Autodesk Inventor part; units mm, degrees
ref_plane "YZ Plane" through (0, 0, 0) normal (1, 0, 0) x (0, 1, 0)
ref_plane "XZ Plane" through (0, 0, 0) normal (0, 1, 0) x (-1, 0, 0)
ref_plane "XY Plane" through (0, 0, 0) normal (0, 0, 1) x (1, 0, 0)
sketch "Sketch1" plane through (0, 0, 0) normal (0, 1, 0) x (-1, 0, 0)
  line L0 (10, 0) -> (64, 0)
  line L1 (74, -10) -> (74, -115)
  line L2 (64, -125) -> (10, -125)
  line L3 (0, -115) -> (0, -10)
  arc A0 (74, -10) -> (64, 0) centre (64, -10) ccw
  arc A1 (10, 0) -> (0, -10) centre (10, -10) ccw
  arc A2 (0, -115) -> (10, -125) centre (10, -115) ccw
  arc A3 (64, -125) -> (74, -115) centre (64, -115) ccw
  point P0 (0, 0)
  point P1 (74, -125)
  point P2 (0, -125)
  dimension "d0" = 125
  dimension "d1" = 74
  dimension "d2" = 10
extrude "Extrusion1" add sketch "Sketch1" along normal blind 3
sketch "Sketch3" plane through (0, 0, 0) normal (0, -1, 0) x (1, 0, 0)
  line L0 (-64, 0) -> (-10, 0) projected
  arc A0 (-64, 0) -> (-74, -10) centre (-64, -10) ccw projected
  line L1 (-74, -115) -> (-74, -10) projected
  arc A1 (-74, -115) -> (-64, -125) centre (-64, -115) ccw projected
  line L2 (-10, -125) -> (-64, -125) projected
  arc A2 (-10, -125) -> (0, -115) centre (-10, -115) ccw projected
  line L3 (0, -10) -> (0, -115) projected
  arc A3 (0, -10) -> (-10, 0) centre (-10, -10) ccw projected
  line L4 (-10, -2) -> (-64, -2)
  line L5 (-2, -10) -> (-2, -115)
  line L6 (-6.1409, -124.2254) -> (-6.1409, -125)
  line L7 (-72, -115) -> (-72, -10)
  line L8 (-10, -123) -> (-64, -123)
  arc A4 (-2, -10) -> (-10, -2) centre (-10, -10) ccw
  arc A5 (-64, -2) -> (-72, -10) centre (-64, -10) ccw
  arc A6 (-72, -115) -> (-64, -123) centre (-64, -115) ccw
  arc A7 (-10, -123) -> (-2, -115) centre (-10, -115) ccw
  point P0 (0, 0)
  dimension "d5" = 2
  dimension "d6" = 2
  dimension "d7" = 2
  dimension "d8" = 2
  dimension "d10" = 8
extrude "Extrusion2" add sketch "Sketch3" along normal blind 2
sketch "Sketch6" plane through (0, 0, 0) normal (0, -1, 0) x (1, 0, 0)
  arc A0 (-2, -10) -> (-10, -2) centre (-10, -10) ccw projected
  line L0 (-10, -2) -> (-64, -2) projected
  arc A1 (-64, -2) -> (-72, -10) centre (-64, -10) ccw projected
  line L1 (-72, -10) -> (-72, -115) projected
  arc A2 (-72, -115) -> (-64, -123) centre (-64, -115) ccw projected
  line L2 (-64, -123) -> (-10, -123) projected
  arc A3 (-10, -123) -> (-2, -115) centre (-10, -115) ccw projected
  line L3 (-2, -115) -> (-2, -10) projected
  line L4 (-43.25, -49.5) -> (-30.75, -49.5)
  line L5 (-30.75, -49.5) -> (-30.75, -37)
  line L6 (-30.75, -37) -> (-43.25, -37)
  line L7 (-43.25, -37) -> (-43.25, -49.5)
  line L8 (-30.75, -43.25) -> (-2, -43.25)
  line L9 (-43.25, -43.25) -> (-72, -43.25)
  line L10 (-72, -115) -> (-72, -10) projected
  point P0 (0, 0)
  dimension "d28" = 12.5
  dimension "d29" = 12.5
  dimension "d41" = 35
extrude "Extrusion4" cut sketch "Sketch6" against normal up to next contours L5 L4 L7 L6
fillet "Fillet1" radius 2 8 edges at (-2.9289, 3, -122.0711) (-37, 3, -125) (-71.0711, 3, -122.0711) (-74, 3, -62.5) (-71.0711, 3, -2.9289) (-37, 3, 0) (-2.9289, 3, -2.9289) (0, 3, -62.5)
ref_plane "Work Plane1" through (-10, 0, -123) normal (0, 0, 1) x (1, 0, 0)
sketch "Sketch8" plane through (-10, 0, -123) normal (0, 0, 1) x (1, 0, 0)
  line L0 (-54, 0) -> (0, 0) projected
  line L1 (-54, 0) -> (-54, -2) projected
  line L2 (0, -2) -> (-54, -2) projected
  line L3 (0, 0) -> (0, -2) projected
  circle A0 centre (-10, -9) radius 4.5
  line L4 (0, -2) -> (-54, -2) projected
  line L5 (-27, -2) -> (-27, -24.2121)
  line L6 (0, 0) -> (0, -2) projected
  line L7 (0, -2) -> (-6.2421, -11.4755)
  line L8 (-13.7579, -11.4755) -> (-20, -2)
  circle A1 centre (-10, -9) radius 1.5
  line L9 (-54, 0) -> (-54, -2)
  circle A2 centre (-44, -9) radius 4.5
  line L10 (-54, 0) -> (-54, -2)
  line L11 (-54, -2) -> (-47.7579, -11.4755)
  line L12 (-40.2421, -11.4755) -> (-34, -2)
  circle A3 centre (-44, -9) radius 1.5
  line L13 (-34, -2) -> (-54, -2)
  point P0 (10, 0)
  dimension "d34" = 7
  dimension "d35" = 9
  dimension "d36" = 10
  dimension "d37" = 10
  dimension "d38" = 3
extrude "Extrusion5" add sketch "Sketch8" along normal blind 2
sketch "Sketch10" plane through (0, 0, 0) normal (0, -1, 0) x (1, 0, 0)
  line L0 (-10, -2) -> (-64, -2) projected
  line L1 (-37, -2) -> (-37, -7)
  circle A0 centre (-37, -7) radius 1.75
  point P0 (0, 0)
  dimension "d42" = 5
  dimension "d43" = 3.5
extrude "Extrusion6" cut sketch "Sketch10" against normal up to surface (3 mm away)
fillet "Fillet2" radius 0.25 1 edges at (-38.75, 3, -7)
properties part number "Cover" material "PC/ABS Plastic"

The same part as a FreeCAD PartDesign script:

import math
import FreeCAD as App
import Part
import Sketcher
Q = App.Units.Quantity


def edges_at(feature, points):
    """Names of the edges that pass closest to the given points."""
    edges = feature.Shape.Edges
    near = lambda p: min(range(len(edges)), key=lambda i: edges[i].distToShape(Part.Vertex(*p))[0])
    return sorted({f"Edge{near(p) + 1}" for p in points})


def add_polygon(sketch, points):
    """Adds a closed chain of lines whose ends are joined by coincident constraints."""
    first, n = sketch.GeometryCount, len(points)
    for a, b in zip(points, points[1:] + points[:1]):
        sketch.addGeometry(Part.LineSegment(App.Vector(*a, 0), App.Vector(*b, 0)), False)
    for i in range(n):
        sketch.addConstraint(Sketcher.Constraint("Coincident", first + i, 2, first + (i + 1) % n, 1))

doc = App.newDocument("Part")
params = doc.addObject("Spreadsheet::Sheet", "Params")
for row, (alias, value) in enumerate([
    ("sketch1_radius", "10 mm"),
    ("pad1_length", "3 mm"),
    ("sketch2_radius", "8 mm"),
    ("sketch2_width", "54 mm"),
    ("sketch2_height", "105 mm"),
    ("pad2_length", "2 mm"),
    ("sketch3_width", "12.5 mm"),
    ("fillet_radius", "2 mm"),
    ("sketch4_diameter", "3 mm"),
    ("sketch4_radius", "4.5 mm"),
    ("sketch4_width", "54 mm"),
    ("pad3_length", "2 mm"),
    ("sketch5_diameter", "3.5 mm"),
    ("pocket2_length", "3 mm"),
    ("fillet2_radius", "0.25 mm"),
], start=1):
    params.set(f"A{row}", alias)
    params.set(f"B{row}", "=" + value)
    params.setAlias(f"B{row}", alias)

body = doc.addObject("PartDesign::Body", "Body")

# Sketch on XZ plane
sketch1 = doc.addObject("Sketcher::SketchObject", "Sketch")
body.addObject(sketch1)
sketch1.AttachmentSupport = (doc.XZ_Plane, [""])
sketch1.MapMode = "FlatFace"
sketch1.addGeometry([
    Part.LineSegment(App.Vector(-64, 0, 0), App.Vector(-10, 0, 0)),  # 0
    Part.ArcOfCircle(Part.Circle(App.Vector(-10, -10, 0), App.Vector(0, 0, 1), 10), math.radians(0), math.radians(90)),  # 1
    Part.LineSegment(App.Vector(0, -10, 0), App.Vector(0, -115, 0)),  # 2
    Part.ArcOfCircle(Part.Circle(App.Vector(-10, -115, 0), App.Vector(0, 0, 1), 10), math.radians(-90), math.radians(0)),  # 3
    Part.LineSegment(App.Vector(-10, -125, 0), App.Vector(-64, -125, 0)),  # 4
    Part.ArcOfCircle(Part.Circle(App.Vector(-64, -115, 0), App.Vector(0, 0, 1), 10), math.radians(180), math.radians(270)),  # 5
    Part.LineSegment(App.Vector(-74, -115, 0), App.Vector(-74, -10, 0)),  # 6
    Part.ArcOfCircle(Part.Circle(App.Vector(-64, -10, 0), App.Vector(0, 0, 1), 10), math.radians(90), math.radians(180)),  # 7
], False)
sketch1.addConstraint([
    Sketcher.Constraint("Tangent", 0, 2, 1, 2),
    Sketcher.Constraint("Tangent", 1, 1, 2, 1),
    Sketcher.Constraint("Tangent", 2, 2, 3, 2),
    Sketcher.Constraint("Tangent", 3, 1, 4, 1),
    Sketcher.Constraint("Tangent", 4, 2, 5, 2),
    Sketcher.Constraint("Tangent", 5, 1, 6, 1),
    Sketcher.Constraint("Tangent", 6, 2, 7, 2),
    Sketcher.Constraint("Tangent", 7, 1, 0, 1),
    Sketcher.Constraint("Horizontal", 0),
    Sketcher.Constraint("Vertical", 2),
    Sketcher.Constraint("Horizontal", 4),
    Sketcher.Constraint("Vertical", 6),
    Sketcher.Constraint("Equal", 1, 3),
    Sketcher.Constraint("Equal", 3, 5),
    Sketcher.Constraint("Equal", 5, 7),
    Sketcher.Constraint("PointOnObject", 0, 2, -1),
    Sketcher.Constraint("PointOnObject", 1, 1, -2),
    Sketcher.Constraint("Radius", 1, Q("10 mm")),
    Sketcher.Constraint("DistanceY", 3, 1, -1, 1, Q("125 mm")),
    Sketcher.Constraint("DistanceX", 5, 1, -1, 1, Q("74 mm")),
])
sketch1.setExpression("Constraints[17]", "Params.sketch1_radius")
pad1 = doc.addObject("PartDesign::Pad", "Pad")
body.addObject(pad1)
pad1.Profile = sketch1
pad1.setExpression("Length", "Params.pad1_length")
pad1.Reversed = True

# Sketch on XZ plane
sketch2 = doc.addObject("Sketcher::SketchObject", "Sketch001")
body.addObject(sketch2)
sketch2.AttachmentSupport = (doc.XZ_Plane, [""])
sketch2.MapMode = "FlatFace"
sketch2.addGeometry([
    Part.LineSegment(App.Vector(-10, 0, 0), App.Vector(-64, 0, 0)),  # 0
    Part.ArcOfCircle(Part.Circle(App.Vector(-64, -10, 0), App.Vector(0, 0, 1), 10), math.radians(90), math.radians(180)),  # 1
    Part.LineSegment(App.Vector(-74, -10, 0), App.Vector(-74, -115, 0)),  # 2
    Part.ArcOfCircle(Part.Circle(App.Vector(-64, -115, 0), App.Vector(0, 0, 1), 10), math.radians(180), math.radians(270)),  # 3
    Part.LineSegment(App.Vector(-64, -125, 0), App.Vector(-10, -125, 0)),  # 4
    Part.ArcOfCircle(Part.Circle(App.Vector(-10, -115, 0), App.Vector(0, 0, 1), 10), math.radians(-90), math.radians(0)),  # 5
    Part.LineSegment(App.Vector(0, -115, 0), App.Vector(0, -10, 0)),  # 6
    Part.ArcOfCircle(Part.Circle(App.Vector(-10, -10, 0), App.Vector(0, 0, 1), 10), math.radians(0), math.radians(90)),  # 7
    Part.LineSegment(App.Vector(-64, -2, 0), App.Vector(-10, -2, 0)),  # 8
    Part.ArcOfCircle(Part.Circle(App.Vector(-10, -10, 0), App.Vector(0, 0, 1), 8), math.radians(0), math.radians(90)),  # 9
    Part.LineSegment(App.Vector(-2, -10, 0), App.Vector(-2, -115, 0)),  # 10
    Part.ArcOfCircle(Part.Circle(App.Vector(-10, -115, 0), App.Vector(0, 0, 1), 8), math.radians(-90), math.radians(0)),  # 11
    Part.LineSegment(App.Vector(-10, -123, 0), App.Vector(-64, -123, 0)),  # 12
    Part.ArcOfCircle(Part.Circle(App.Vector(-64, -115, 0), App.Vector(0, 0, 1), 8), math.radians(180), math.radians(270)),  # 13
    Part.LineSegment(App.Vector(-72, -115, 0), App.Vector(-72, -10, 0)),  # 14
    Part.ArcOfCircle(Part.Circle(App.Vector(-64, -10, 0), App.Vector(0, 0, 1), 8), math.radians(90), math.radians(180)),  # 15
], False)
sketch2.addConstraint([
    Sketcher.Constraint("Tangent", 0, 2, 1, 1),
    Sketcher.Constraint("Tangent", 1, 2, 2, 1),
    Sketcher.Constraint("Tangent", 2, 2, 3, 1),
    Sketcher.Constraint("Tangent", 3, 2, 4, 1),
    Sketcher.Constraint("Tangent", 4, 2, 5, 1),
    Sketcher.Constraint("Tangent", 5, 2, 6, 1),
    Sketcher.Constraint("Tangent", 6, 2, 7, 1),
    Sketcher.Constraint("Tangent", 7, 2, 0, 1),
    Sketcher.Constraint("Tangent", 8, 2, 9, 2),
    Sketcher.Constraint("Tangent", 9, 1, 10, 1),
    Sketcher.Constraint("Tangent", 10, 2, 11, 2),
    Sketcher.Constraint("Tangent", 11, 1, 12, 1),
    Sketcher.Constraint("Tangent", 12, 2, 13, 2),
    Sketcher.Constraint("Tangent", 13, 1, 14, 1),
    Sketcher.Constraint("Tangent", 14, 2, 15, 2),
    Sketcher.Constraint("Tangent", 15, 1, 8, 1),
    Sketcher.Constraint("Horizontal", 0),
    Sketcher.Constraint("Vertical", 2),
    Sketcher.Constraint("Horizontal", 4),
    Sketcher.Constraint("Vertical", 6),
    Sketcher.Constraint("Horizontal", 8),
    Sketcher.Constraint("Vertical", 10),
    Sketcher.Constraint("Horizontal", 12),
    Sketcher.Constraint("Vertical", 14),
    Sketcher.Constraint("Coincident", 9, 3, 7, 3),
    Sketcher.Constraint("Coincident", 11, 3, 5, 3),
    Sketcher.Constraint("Coincident", 13, 3, 3, 3),
    Sketcher.Constraint("Equal", 1, 3),
    Sketcher.Constraint("Equal", 3, 5),
    Sketcher.Constraint("Equal", 5, 7),
    Sketcher.Constraint("Equal", 13, 15),
    Sketcher.Constraint("PointOnObject", 0, 2, -1),
    Sketcher.Constraint("PointOnObject", 5, 2, -2),
    Sketcher.Constraint("Radius", 9, Q("8 mm")),
    Sketcher.Constraint("DistanceY", 8, 2, -1, 1, Q("2 mm")),
    Sketcher.Constraint("DistanceX", 0, 2, 0, 1, Q("54 mm")),
    Sketcher.Constraint("DistanceY", 2, 2, 2, 1, Q("105 mm")),
])
sketch2.setExpression("Constraints[33]", "Params.sketch2_radius")
sketch2.setExpression("Constraints[35]", "Params.sketch2_width")
sketch2.setExpression("Constraints[36]", "Params.sketch2_height")
pad2 = doc.addObject("PartDesign::Pad", "Pad001")
body.addObject(pad2)
pad2.Profile = sketch2
pad2.setExpression("Length", "Params.pad2_length")

# Sketch on XZ plane
sketch3 = doc.addObject("Sketcher::SketchObject", "Sketch002")
body.addObject(sketch3)
sketch3.AttachmentSupport = (doc.XZ_Plane, [""])
sketch3.MapMode = "FlatFace"
add_polygon(sketch3, [(-30.75, -49.5), (-30.75, -37), (-43.25, -37), (-43.25, -49.5)])  # lines 0-3
sketch3.addConstraint([
    Sketcher.Constraint("Vertical", 0),
    Sketcher.Constraint("Horizontal", 1),
    Sketcher.Constraint("Vertical", 2),
    Sketcher.Constraint("Horizontal", 3),
    Sketcher.Constraint("Equal", 3, 0),
    Sketcher.Constraint("DistanceX", 1, 2, 1, 1, Q("12.5 mm")),
    Sketcher.Constraint("DistanceY", 0, 2, -1, 1, Q("37 mm")),
    Sketcher.Constraint("DistanceX", 0, 2, -1, 1, Q("30.75 mm")),
])
sketch3.setExpression("Constraints[9]", "Params.sketch3_width")
pocket1 = doc.addObject("PartDesign::Pocket", "Pocket")
body.addObject(pocket1)
pocket1.Profile = sketch3
pocket1.Type = "UpToFirst"
doc.recompute()

fillet = doc.addObject("PartDesign::Fillet", "Fillet")
body.addObject(fillet)
fillet.Base = (pocket1, edges_at(pocket1, [
    (-2.929, 3, -122.071),
    (-37, 3, -125),
    (-71.071, 3, -122.071),
    (-74, 3, -62.5),
    (-71.071, 3, -2.929),
    (-37, 3, 0),
    (-2.929, 3, -2.929),
    (0, 3, -62.5),
]))
fillet.setExpression("Radius", "Params.fillet_radius")

# Sketch on XY plane
sketch4 = doc.addObject("Sketcher::SketchObject", "Sketch003")
body.addObject(sketch4)
sketch4.AttachmentSupport = (doc.XY_Plane, [""])
sketch4.MapMode = "FlatFace"
sketch4.AttachmentOffset = App.Placement(App.Vector(0, 0, -123), App.Rotation())
sketch4.addGeometry([
    Part.LineSegment(App.Vector(-10, 0, 0), App.Vector(-64, 0, 0)),  # 0
    Part.LineSegment(App.Vector(-64, 0, 0), App.Vector(-64, -2, 0)),  # 1
    Part.LineSegment(App.Vector(-64, -2, 0), App.Vector(-57.7579, -11.4755, 0)),  # 2
    Part.ArcOfCircle(Part.Circle(App.Vector(-54, -9, 0), App.Vector(0, 0, 1), 4.5), math.radians(-146.625283), math.radians(-33.374717)),  # 3
    Part.LineSegment(App.Vector(-50.2421, -11.4755, 0), App.Vector(-44, -2, 0)),  # 4
    Part.LineSegment(App.Vector(-44, -2, 0), App.Vector(-30, -2, 0)),  # 5
    Part.LineSegment(App.Vector(-30, -2, 0), App.Vector(-23.7579, -11.4755, 0)),  # 6
    Part.ArcOfCircle(Part.Circle(App.Vector(-20, -9, 0), App.Vector(0, 0, 1), 4.5), math.radians(-146.625283), math.radians(-33.374717)),  # 7
    Part.LineSegment(App.Vector(-16.2421, -11.4755, 0), App.Vector(-10, -2, 0)),  # 8
    Part.LineSegment(App.Vector(-10, -2, 0), App.Vector(-10, 0, 0)),  # 9
    Part.Circle(App.Vector(-20, -9, 0), App.Vector(0, 0, 1), 1.5),  # 10
    Part.Circle(App.Vector(-54, -9, 0), App.Vector(0, 0, 1), 1.5),  # 11
], False)
sketch4.addConstraint([
    Sketcher.Constraint("Coincident", 0, 2, 1, 1),
    Sketcher.Constraint("Coincident", 1, 2, 2, 1),
    Sketcher.Constraint("Tangent", 2, 2, 3, 1),
    Sketcher.Constraint("Tangent", 3, 2, 4, 1),
    Sketcher.Constraint("Coincident", 4, 2, 5, 1),
    Sketcher.Constraint("Coincident", 5, 2, 6, 1),
    Sketcher.Constraint("Tangent", 6, 2, 7, 1),
    Sketcher.Constraint("Tangent", 7, 2, 8, 1),
    Sketcher.Constraint("Coincident", 8, 2, 9, 1),
    Sketcher.Constraint("Coincident", 9, 2, 0, 1),
    Sketcher.Constraint("Horizontal", 0),
    Sketcher.Constraint("Vertical", 1),
    Sketcher.Constraint("Horizontal", 5),
    Sketcher.Constraint("Vertical", 9),
    Sketcher.Constraint("Coincident", 10, 3, 7, 3),
    Sketcher.Constraint("Coincident", 11, 3, 3, 3),
    Sketcher.Constraint("Equal", 3, 7),
    Sketcher.Constraint("Equal", 10, 11),
    Sketcher.Constraint("PointOnObject", 0, 2, -1),
    Sketcher.Constraint("Parallel", 2, 6),
    Sketcher.Constraint("Parallel", 4, 8),
    Sketcher.Constraint("Horizontal", 3, 3, 7, 3),
    Sketcher.Constraint("Horizontal", 2, 2, 3, 2),
    Sketcher.Constraint("Horizontal", 1, 2, 4, 2),
    Sketcher.Constraint("Horizontal", 5, 2, 8, 2),
    Sketcher.Constraint("Diameter", 10, Q("3 mm")),
    Sketcher.Constraint("Radius", 3, Q("4.5 mm")),
    Sketcher.Constraint("DistanceY", 3, 3, -1, 1, Q("9 mm")),
    Sketcher.Constraint("DistanceX", 8, 2, -1, 1, Q("10 mm")),
    Sketcher.Constraint("DistanceX", 0, 2, 3, 3, Q("10 mm")),
    Sketcher.Constraint("DistanceY", 3, 3, 1, 2, Q("7 mm")),
    Sketcher.Constraint("DistanceX", 0, 2, 0, 1, Q("54 mm")),
])
sketch4.setExpression("Constraints[25]", "Params.sketch4_diameter")
sketch4.setExpression("Constraints[26]", "Params.sketch4_radius")
sketch4.setExpression("Constraints[31]", "Params.sketch4_width")
pad3 = doc.addObject("PartDesign::Pad", "Pad002")
body.addObject(pad3)
pad3.Profile = sketch4
pad3.setExpression("Length", "Params.pad3_length")

# Sketch on XZ plane
sketch5 = doc.addObject("Sketcher::SketchObject", "Sketch004")
body.addObject(sketch5)
sketch5.AttachmentSupport = (doc.XZ_Plane, [""])
sketch5.MapMode = "FlatFace"
sketch5.addGeometry(Part.Circle(App.Vector(-37, -7, 0), App.Vector(0, 0, 1), 1.75), False)
sketch5.addConstraint([
    Sketcher.Constraint("Diameter", 0, Q("3.5 mm")),
    Sketcher.Constraint("DistanceX", 0, 3, -1, 1, Q("37 mm")),
    Sketcher.Constraint("DistanceY", 0, 3, -1, 1, Q("7 mm")),
])
sketch5.setExpression("Constraints[0]", "Params.sketch5_diameter")
pocket2 = doc.addObject("PartDesign::Pocket", "Pocket001")
body.addObject(pocket2)
pocket2.Profile = sketch5
pocket2.setExpression("Length", "Params.pocket2_length")
doc.recompute()

fillet2 = doc.addObject("PartDesign::Fillet", "Fillet001")
body.addObject(fillet2)
fillet2.Base = (pocket2, edges_at(pocket2, [(-38.75, 3, -7)]))
fillet2.setExpression("Radius", "Params.fillet2_radius")

doc.recompute()
